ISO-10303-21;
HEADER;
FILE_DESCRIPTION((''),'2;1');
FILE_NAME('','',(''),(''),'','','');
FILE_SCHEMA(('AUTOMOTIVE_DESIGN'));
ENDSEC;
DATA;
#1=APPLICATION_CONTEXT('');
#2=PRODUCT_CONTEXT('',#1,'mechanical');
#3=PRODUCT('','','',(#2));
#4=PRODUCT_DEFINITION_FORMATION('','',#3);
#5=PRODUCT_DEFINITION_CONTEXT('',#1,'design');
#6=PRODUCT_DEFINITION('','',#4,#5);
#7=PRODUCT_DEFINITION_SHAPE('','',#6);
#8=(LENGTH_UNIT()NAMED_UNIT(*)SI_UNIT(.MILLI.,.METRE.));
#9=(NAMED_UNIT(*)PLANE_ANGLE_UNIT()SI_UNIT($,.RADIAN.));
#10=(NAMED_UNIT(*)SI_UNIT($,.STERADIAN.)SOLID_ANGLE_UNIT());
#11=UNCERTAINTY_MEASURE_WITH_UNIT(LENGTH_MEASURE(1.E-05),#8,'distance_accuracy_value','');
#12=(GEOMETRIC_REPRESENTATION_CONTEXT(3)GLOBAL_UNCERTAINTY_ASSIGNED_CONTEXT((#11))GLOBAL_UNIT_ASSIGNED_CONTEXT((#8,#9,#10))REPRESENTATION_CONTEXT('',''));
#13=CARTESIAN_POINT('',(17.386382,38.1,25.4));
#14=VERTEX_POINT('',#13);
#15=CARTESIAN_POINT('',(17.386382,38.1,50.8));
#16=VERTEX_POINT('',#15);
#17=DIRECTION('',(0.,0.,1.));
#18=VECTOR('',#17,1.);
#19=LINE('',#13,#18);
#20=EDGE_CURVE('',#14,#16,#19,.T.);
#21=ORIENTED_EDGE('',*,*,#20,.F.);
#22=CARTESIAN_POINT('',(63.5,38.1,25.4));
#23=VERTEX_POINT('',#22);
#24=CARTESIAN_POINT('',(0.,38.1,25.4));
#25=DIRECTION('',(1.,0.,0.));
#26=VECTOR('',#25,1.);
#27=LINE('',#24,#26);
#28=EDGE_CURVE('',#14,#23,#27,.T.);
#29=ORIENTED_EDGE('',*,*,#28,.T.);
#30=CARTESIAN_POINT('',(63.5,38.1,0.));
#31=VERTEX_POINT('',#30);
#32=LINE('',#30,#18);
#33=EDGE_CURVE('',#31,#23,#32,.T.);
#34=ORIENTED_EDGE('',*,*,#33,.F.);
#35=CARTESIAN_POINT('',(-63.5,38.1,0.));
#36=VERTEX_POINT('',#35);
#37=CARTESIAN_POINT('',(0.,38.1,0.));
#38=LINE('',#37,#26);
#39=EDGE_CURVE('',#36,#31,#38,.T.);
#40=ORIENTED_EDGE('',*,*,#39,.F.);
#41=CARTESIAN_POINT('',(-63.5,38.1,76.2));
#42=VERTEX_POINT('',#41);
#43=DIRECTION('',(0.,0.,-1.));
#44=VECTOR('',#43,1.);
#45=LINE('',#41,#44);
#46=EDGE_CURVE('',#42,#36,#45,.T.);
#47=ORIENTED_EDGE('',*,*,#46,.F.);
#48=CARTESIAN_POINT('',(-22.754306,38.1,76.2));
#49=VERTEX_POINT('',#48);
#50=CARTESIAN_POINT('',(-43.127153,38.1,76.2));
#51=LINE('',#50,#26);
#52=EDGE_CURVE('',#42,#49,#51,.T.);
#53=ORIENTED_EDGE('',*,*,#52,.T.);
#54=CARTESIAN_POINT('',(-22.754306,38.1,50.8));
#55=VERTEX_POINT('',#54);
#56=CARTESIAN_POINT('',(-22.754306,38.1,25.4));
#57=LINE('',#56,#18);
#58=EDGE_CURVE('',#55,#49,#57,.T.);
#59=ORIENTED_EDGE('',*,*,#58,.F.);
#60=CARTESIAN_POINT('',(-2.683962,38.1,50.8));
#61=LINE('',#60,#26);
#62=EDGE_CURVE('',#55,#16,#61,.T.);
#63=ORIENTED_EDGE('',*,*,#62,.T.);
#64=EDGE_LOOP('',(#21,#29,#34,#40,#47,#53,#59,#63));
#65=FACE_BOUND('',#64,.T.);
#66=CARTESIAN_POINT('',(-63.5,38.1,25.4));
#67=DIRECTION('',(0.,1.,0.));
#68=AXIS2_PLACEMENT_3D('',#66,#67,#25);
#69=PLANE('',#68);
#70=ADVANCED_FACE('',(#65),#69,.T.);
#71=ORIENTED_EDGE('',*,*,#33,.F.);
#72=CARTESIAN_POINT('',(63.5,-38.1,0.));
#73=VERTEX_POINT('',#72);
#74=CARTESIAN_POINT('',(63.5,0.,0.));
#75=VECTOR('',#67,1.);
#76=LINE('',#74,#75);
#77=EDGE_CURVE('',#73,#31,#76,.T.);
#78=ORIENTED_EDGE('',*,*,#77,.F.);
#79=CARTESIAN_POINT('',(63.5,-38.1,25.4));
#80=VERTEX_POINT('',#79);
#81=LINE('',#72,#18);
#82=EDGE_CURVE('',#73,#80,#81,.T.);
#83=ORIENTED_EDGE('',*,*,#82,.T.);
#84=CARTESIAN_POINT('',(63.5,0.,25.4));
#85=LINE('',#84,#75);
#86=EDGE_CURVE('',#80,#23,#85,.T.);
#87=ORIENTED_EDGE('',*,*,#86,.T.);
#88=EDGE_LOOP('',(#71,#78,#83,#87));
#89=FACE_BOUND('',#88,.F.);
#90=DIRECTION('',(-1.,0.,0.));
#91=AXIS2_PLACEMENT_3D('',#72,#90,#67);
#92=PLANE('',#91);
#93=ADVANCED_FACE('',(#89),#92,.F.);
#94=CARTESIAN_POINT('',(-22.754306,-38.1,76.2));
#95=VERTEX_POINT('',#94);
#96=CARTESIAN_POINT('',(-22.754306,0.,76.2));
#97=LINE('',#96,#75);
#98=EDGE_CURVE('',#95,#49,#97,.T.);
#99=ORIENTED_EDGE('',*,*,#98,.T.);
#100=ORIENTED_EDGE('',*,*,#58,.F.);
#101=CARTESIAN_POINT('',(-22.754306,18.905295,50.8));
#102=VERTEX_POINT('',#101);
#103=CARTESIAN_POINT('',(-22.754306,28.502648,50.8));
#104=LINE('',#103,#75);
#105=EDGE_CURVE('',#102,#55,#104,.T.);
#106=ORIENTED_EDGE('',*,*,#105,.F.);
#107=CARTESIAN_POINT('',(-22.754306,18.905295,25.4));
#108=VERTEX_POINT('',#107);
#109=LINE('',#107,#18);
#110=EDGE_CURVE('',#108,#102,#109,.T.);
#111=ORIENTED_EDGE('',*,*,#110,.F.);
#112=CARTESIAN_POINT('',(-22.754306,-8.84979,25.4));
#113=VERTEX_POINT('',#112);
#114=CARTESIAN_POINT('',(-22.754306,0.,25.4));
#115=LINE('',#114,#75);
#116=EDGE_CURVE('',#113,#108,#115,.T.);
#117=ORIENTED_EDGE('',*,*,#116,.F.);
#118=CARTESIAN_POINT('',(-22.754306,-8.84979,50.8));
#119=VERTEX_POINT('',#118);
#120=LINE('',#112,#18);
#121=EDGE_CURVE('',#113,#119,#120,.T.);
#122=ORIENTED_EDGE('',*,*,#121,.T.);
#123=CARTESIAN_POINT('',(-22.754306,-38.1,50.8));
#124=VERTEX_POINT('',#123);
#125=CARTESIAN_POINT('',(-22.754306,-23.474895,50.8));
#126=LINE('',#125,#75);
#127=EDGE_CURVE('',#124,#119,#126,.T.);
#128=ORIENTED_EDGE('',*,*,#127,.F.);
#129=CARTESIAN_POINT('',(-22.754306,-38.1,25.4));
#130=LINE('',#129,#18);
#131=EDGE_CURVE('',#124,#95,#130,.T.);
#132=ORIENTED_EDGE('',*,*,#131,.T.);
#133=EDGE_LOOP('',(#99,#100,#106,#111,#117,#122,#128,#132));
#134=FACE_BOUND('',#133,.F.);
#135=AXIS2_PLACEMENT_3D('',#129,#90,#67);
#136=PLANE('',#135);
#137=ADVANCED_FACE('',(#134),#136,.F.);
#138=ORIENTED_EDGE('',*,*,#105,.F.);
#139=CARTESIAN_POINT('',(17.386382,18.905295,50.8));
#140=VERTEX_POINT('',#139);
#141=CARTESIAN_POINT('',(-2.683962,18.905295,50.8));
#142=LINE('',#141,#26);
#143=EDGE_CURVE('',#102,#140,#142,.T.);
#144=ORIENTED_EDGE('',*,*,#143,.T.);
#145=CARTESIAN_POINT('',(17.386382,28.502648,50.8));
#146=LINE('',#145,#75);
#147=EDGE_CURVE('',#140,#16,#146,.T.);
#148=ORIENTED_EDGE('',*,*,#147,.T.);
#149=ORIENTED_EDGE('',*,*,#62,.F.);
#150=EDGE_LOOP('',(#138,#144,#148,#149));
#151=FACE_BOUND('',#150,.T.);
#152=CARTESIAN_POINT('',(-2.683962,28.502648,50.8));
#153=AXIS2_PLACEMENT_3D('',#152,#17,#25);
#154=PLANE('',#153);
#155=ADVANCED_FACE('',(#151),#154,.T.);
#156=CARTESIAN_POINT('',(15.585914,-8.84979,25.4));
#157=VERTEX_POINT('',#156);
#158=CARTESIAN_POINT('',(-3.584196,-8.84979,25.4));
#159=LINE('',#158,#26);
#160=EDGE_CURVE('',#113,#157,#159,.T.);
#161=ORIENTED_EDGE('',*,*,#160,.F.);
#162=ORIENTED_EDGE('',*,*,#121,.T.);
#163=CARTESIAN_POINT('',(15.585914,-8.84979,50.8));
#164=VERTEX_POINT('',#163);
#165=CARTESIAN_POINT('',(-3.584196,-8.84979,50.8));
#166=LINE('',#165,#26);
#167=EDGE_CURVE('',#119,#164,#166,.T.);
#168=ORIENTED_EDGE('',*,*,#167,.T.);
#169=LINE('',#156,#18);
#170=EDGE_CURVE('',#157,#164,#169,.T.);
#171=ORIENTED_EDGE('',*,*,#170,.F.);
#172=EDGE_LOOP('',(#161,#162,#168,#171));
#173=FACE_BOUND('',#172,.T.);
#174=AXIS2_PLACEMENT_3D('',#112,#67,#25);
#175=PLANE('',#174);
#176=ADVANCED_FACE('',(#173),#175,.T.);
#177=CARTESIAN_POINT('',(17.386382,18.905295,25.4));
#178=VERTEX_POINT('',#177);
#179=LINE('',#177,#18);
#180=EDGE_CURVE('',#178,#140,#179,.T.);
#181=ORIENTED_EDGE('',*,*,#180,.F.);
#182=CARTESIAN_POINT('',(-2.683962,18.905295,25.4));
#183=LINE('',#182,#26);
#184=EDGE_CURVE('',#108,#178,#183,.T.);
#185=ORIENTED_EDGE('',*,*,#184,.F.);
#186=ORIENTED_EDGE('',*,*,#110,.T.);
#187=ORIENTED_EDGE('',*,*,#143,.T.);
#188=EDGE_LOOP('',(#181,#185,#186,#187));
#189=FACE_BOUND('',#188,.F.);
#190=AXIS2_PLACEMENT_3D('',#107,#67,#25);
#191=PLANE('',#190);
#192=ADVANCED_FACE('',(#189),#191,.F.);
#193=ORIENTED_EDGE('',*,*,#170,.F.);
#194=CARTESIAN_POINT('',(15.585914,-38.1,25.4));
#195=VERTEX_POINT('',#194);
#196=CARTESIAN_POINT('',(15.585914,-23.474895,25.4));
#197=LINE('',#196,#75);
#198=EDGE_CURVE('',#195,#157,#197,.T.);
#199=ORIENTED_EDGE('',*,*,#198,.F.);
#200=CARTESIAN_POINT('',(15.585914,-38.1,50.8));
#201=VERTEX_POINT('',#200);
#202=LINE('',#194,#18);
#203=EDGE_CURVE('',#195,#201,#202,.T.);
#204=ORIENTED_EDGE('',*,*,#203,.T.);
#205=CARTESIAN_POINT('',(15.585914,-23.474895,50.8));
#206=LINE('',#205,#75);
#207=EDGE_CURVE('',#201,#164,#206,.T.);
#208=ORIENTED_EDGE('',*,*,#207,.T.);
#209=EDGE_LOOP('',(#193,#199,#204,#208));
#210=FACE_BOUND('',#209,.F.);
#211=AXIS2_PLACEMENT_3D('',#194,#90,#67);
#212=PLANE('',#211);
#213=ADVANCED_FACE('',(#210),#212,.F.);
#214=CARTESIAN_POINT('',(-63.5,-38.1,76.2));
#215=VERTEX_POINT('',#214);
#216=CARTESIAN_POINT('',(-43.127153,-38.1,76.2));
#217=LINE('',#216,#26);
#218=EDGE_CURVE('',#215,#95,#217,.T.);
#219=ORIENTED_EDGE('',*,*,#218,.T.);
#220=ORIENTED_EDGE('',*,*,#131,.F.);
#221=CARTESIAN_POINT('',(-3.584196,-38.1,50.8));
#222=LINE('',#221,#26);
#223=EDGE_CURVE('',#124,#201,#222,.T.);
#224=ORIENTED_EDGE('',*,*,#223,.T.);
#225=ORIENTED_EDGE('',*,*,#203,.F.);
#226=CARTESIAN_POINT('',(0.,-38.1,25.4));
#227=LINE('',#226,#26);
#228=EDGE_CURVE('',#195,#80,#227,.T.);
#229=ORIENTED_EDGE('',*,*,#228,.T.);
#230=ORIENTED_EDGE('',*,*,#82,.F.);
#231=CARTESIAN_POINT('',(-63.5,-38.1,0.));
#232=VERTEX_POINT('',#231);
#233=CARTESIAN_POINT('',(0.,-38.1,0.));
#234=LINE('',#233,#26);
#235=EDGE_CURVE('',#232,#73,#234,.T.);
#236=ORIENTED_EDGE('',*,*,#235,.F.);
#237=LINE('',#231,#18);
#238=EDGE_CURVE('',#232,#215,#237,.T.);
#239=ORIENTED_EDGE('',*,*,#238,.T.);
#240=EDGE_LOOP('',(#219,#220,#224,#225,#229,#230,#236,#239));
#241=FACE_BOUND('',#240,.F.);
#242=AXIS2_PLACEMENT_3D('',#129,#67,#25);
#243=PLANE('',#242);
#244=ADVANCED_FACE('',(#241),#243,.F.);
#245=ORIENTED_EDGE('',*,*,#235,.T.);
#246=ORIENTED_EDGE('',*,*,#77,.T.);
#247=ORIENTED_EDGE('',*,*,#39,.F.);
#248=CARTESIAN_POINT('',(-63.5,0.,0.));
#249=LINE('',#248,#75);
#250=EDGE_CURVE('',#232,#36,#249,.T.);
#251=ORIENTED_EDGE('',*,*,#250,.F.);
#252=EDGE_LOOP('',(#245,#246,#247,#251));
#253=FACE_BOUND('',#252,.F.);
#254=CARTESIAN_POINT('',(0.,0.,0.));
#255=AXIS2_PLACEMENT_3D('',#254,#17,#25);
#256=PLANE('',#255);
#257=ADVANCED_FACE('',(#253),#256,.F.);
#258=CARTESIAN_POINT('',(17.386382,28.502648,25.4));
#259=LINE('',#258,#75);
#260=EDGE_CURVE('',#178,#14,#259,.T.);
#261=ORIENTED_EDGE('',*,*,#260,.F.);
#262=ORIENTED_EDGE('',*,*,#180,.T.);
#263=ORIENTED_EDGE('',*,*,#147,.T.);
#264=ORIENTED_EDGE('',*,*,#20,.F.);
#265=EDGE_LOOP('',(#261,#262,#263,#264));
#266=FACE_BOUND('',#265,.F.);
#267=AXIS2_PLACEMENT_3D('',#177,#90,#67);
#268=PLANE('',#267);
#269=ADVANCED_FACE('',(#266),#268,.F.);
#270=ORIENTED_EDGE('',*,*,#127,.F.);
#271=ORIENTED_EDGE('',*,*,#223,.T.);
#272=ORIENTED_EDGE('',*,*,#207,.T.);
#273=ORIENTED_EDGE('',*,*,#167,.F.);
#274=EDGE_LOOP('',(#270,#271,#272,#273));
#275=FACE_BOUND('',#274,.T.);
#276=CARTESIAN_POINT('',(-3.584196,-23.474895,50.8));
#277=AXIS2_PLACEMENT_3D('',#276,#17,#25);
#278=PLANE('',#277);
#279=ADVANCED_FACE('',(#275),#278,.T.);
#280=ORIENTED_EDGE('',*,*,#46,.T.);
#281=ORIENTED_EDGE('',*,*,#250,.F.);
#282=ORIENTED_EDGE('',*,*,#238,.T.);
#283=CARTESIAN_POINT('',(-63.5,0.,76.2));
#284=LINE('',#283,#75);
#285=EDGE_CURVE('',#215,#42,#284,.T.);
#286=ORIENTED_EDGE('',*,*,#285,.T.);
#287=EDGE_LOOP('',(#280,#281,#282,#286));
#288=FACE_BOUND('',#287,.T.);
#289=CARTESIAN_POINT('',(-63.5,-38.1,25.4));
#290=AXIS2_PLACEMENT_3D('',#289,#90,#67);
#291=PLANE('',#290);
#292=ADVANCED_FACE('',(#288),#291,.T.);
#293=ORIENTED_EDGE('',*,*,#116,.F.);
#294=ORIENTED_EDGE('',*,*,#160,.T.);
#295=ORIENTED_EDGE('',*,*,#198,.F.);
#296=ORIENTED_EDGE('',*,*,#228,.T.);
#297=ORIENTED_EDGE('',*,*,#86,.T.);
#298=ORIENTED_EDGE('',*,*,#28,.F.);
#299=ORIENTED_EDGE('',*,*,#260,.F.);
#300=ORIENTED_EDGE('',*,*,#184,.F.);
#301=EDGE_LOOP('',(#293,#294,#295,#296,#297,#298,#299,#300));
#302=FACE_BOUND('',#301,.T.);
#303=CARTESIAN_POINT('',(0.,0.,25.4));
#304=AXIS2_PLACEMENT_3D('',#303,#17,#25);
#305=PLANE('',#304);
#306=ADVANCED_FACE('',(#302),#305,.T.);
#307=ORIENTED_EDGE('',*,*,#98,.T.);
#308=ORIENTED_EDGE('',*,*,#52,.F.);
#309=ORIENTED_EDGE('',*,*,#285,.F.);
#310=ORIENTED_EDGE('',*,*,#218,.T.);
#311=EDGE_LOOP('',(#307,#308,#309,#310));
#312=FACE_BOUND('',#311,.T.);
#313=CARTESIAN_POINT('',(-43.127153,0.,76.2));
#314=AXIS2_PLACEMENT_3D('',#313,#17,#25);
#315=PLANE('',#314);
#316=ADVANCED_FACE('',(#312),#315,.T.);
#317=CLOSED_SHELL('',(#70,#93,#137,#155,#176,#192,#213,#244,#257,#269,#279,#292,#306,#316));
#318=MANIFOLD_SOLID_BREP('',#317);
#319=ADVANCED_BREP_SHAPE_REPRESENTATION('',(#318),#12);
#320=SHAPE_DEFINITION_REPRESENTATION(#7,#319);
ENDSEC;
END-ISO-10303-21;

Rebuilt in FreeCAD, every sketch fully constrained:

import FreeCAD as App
import Part
import Sketcher
Q = App.Units.Quantity

doc = App.newDocument("Part")
body = doc.addObject("PartDesign::Body", "Body")

# Sketch on XY plane
sketch1 = body.newObject("Sketcher::SketchObject", "Sketch")
sketch1.AttachmentSupport = (doc.getObject("XY_Plane"), [""])
sketch1.MapMode = "FlatFace"
sketch1.addGeometry(Part.LineSegment(App.Vector(-64, 38, 0), App.Vector(-64, -38, 0)), False)
sketch1.addGeometry(Part.LineSegment(App.Vector(-64, -38, 0), App.Vector(64, -38, 0)), False)
sketch1.addGeometry(Part.LineSegment(App.Vector(64, -38, 0), App.Vector(64, 38, 0)), False)
sketch1.addGeometry(Part.LineSegment(App.Vector(64, 38, 0), App.Vector(-64, 38, 0)), False)
sketch1.addConstraint(Sketcher.Constraint("Coincident", 0, 2, 1, 1))
sketch1.addConstraint(Sketcher.Constraint("Coincident", 1, 2, 2, 1))
sketch1.addConstraint(Sketcher.Constraint("Coincident", 2, 2, 3, 1))
sketch1.addConstraint(Sketcher.Constraint("Coincident", 3, 2, 0, 1))
sketch1.addConstraint(Sketcher.Constraint("Vertical", 0))
sketch1.addConstraint(Sketcher.Constraint("Horizontal", 1))
sketch1.addConstraint(Sketcher.Constraint("Vertical", 2))
sketch1.addConstraint(Sketcher.Constraint("Horizontal", 3))
sketch1.addConstraint(Sketcher.Constraint("Symmetric", 0, 2, 2, 2, -1, 1))
sketch1.addConstraint(Sketcher.Constraint("DistanceX", 1, 1, 1, 2, Q("5 in")))
sketch1.addConstraint(Sketcher.Constraint("DistanceY", 0, 2, 0, 1, Q("3 in")))
pad1 = body.newObject("PartDesign::Pad", "Pad")
pad1.Profile = sketch1
pad1.Length = Q("1 in")

# Sketch on XY plane
sketch2 = body.newObject("Sketcher::SketchObject", "Sketch001")
sketch2.AttachmentSupport = (doc.getObject("XY_Plane"), [""])
sketch2.MapMode = "FlatFace"
sketch2.AttachmentOffset = App.Placement(App.Vector(0, 0, 1 * 25.4), App.Rotation())
sketch2.addGeometry(Part.LineSegment(App.Vector(-64, 38, 0), App.Vector(-64, -38, 0)), False)
sketch2.addGeometry(Part.LineSegment(App.Vector(-64, -38, 0), App.Vector(-23, -38, 0)), False)
sketch2.addGeometry(Part.LineSegment(App.Vector(-23, -38, 0), App.Vector(-23, 38, 0)), False)
sketch2.addGeometry(Part.LineSegment(App.Vector(-23, 38, 0), App.Vector(-64, 38, 0)), False)
sketch2.addConstraint(Sketcher.Constraint("Coincident", 0, 2, 1, 1))
sketch2.addConstraint(Sketcher.Constraint("Coincident", 1, 2, 2, 1))
sketch2.addConstraint(Sketcher.Constraint("Coincident", 2, 2, 3, 1))
sketch2.addConstraint(Sketcher.Constraint("Coincident", 3, 2, 0, 1))
sketch2.addConstraint(Sketcher.Constraint("Vertical", 0))
sketch2.addConstraint(Sketcher.Constraint("Horizontal", 1))
sketch2.addConstraint(Sketcher.Constraint("Vertical", 2))
sketch2.addConstraint(Sketcher.Constraint("Horizontal", 3))
sketch2.addConstraint(Sketcher.Constraint("DistanceY", 0, 2, 0, 1, Q("3 in")))
sketch2.addConstraint(Sketcher.Constraint("DistanceX", 0, 2, -1, 1, Q("2.5 in")))
sketch2.addConstraint(Sketcher.Constraint("DistanceY", 0, 2, -1, 1, Q("1.5 in")))
sketch2.addConstraint(Sketcher.Constraint("DistanceX", 1, 1, 1, 2, Q("40.745694 mm")))
pad2 = body.newObject("PartDesign::Pad", "Pad001")
pad2.Profile = sketch2
pad2.Length = Q("2 in")

# Sketch on XY plane
sketch3 = body.newObject("Sketcher::SketchObject", "Sketch002")
sketch3.AttachmentSupport = (doc.getObject("XY_Plane"), [""])
sketch3.MapMode = "FlatFace"
sketch3.AttachmentOffset = App.Placement(App.Vector(0, 0, 1 * 25.4), App.Rotation())
sketch3.addGeometry(Part.LineSegment(App.Vector(-23, 38, 0), App.Vector(-23, 19, 0)), False)
sketch3.addGeometry(Part.LineSegment(App.Vector(-23, 19, 0), App.Vector(17, 19, 0)), False)
sketch3.addGeometry(Part.LineSegment(App.Vector(17, 19, 0), App.Vector(17, 38, 0)), False)
sketch3.addGeometry(Part.LineSegment(App.Vector(17, 38, 0), App.Vector(-23, 38, 0)), False)
sketch3.addConstraint(Sketcher.Constraint("Coincident", 0, 2, 1, 1))
sketch3.addConstraint(Sketcher.Constraint("Coincident", 1, 2, 2, 1))
sketch3.addConstraint(Sketcher.Constraint("Coincident", 2, 2, 3, 1))
sketch3.addConstraint(Sketcher.Constraint("Coincident", 3, 2, 0, 1))
sketch3.addConstraint(Sketcher.Constraint("Vertical", 0))
sketch3.addConstraint(Sketcher.Constraint("Horizontal", 1))
sketch3.addConstraint(Sketcher.Constraint("Vertical", 2))
sketch3.addConstraint(Sketcher.Constraint("Horizontal", 3))
sketch3.addConstraint(Sketcher.Constraint("DistanceY", -1, 1, 2, 2, Q("1.5 in")))
sketch3.addConstraint(Sketcher.Constraint("DistanceX", 1, 1, 1, 2, Q("40.140688 mm")))
sketch3.addConstraint(Sketcher.Constraint("DistanceY", 0, 2, 0, 1, Q("19.194705 mm")))
sketch3.addConstraint(Sketcher.Constraint("DistanceX", 0, 2, -1, 1, Q("22.754306 mm")))
pad3 = body.newObject("PartDesign::Pad", "Pad002")
pad3.Profile = sketch3
pad3.Length = Q("1 in")

# Sketch on XY plane
sketch4 = body.newObject("Sketcher::SketchObject", "Sketch003")
sketch4.AttachmentSupport = (doc.getObject("XY_Plane"), [""])
sketch4.MapMode = "FlatFace"
sketch4.AttachmentOffset = App.Placement(App.Vector(0, 0, 1 * 25.4), App.Rotation())
sketch4.addGeometry(Part.LineSegment(App.Vector(-23, -9, 0), App.Vector(-23, -38, 0)), False)
sketch4.addGeometry(Part.LineSegment(App.Vector(-23, -38, 0), App.Vector(16, -38, 0)), False)
sketch4.addGeometry(Part.LineSegment(App.Vector(16, -38, 0), App.Vector(16, -9, 0)), False)
sketch4.addGeometry(Part.LineSegment(App.Vector(16, -9, 0), App.Vector(-23, -9, 0)), False)
sketch4.addConstraint(Sketcher.Constraint("Coincident", 0, 2, 1, 1))
sketch4.addConstraint(Sketcher.Constraint("Coincident", 1, 2, 2, 1))
sketch4.addConstraint(Sketcher.Constraint("Coincident", 2, 2, 3, 1))
sketch4.addConstraint(Sketcher.Constraint("Coincident", 3, 2, 0, 1))
sketch4.addConstraint(Sketcher.Constraint("Vertical", 0))
sketch4.addConstraint(Sketcher.Constraint("Horizontal", 1))
sketch4.addConstraint(Sketcher.Constraint("Vertical", 2))
sketch4.addConstraint(Sketcher.Constraint("Horizontal", 3))
sketch4.addConstraint(Sketcher.Constraint("DistanceY", 0, 2, -1, 1, Q("1.5 in")))
sketch4.addConstraint(Sketcher.Constraint("DistanceX", 1, 1, 1, 2, Q("38.34022 mm")))
sketch4.addConstraint(Sketcher.Constraint("DistanceY", 0, 2, 0, 1, Q("29.25021 mm")))
sketch4.addConstraint(Sketcher.Constraint("DistanceX", 0, 2, -1, 1, Q("22.754306 mm")))
pad4 = body.newObject("PartDesign::Pad", "Pad003")
pad4.Profile = sketch4
pad4.Length = Q("1 in")

doc.recompute()
